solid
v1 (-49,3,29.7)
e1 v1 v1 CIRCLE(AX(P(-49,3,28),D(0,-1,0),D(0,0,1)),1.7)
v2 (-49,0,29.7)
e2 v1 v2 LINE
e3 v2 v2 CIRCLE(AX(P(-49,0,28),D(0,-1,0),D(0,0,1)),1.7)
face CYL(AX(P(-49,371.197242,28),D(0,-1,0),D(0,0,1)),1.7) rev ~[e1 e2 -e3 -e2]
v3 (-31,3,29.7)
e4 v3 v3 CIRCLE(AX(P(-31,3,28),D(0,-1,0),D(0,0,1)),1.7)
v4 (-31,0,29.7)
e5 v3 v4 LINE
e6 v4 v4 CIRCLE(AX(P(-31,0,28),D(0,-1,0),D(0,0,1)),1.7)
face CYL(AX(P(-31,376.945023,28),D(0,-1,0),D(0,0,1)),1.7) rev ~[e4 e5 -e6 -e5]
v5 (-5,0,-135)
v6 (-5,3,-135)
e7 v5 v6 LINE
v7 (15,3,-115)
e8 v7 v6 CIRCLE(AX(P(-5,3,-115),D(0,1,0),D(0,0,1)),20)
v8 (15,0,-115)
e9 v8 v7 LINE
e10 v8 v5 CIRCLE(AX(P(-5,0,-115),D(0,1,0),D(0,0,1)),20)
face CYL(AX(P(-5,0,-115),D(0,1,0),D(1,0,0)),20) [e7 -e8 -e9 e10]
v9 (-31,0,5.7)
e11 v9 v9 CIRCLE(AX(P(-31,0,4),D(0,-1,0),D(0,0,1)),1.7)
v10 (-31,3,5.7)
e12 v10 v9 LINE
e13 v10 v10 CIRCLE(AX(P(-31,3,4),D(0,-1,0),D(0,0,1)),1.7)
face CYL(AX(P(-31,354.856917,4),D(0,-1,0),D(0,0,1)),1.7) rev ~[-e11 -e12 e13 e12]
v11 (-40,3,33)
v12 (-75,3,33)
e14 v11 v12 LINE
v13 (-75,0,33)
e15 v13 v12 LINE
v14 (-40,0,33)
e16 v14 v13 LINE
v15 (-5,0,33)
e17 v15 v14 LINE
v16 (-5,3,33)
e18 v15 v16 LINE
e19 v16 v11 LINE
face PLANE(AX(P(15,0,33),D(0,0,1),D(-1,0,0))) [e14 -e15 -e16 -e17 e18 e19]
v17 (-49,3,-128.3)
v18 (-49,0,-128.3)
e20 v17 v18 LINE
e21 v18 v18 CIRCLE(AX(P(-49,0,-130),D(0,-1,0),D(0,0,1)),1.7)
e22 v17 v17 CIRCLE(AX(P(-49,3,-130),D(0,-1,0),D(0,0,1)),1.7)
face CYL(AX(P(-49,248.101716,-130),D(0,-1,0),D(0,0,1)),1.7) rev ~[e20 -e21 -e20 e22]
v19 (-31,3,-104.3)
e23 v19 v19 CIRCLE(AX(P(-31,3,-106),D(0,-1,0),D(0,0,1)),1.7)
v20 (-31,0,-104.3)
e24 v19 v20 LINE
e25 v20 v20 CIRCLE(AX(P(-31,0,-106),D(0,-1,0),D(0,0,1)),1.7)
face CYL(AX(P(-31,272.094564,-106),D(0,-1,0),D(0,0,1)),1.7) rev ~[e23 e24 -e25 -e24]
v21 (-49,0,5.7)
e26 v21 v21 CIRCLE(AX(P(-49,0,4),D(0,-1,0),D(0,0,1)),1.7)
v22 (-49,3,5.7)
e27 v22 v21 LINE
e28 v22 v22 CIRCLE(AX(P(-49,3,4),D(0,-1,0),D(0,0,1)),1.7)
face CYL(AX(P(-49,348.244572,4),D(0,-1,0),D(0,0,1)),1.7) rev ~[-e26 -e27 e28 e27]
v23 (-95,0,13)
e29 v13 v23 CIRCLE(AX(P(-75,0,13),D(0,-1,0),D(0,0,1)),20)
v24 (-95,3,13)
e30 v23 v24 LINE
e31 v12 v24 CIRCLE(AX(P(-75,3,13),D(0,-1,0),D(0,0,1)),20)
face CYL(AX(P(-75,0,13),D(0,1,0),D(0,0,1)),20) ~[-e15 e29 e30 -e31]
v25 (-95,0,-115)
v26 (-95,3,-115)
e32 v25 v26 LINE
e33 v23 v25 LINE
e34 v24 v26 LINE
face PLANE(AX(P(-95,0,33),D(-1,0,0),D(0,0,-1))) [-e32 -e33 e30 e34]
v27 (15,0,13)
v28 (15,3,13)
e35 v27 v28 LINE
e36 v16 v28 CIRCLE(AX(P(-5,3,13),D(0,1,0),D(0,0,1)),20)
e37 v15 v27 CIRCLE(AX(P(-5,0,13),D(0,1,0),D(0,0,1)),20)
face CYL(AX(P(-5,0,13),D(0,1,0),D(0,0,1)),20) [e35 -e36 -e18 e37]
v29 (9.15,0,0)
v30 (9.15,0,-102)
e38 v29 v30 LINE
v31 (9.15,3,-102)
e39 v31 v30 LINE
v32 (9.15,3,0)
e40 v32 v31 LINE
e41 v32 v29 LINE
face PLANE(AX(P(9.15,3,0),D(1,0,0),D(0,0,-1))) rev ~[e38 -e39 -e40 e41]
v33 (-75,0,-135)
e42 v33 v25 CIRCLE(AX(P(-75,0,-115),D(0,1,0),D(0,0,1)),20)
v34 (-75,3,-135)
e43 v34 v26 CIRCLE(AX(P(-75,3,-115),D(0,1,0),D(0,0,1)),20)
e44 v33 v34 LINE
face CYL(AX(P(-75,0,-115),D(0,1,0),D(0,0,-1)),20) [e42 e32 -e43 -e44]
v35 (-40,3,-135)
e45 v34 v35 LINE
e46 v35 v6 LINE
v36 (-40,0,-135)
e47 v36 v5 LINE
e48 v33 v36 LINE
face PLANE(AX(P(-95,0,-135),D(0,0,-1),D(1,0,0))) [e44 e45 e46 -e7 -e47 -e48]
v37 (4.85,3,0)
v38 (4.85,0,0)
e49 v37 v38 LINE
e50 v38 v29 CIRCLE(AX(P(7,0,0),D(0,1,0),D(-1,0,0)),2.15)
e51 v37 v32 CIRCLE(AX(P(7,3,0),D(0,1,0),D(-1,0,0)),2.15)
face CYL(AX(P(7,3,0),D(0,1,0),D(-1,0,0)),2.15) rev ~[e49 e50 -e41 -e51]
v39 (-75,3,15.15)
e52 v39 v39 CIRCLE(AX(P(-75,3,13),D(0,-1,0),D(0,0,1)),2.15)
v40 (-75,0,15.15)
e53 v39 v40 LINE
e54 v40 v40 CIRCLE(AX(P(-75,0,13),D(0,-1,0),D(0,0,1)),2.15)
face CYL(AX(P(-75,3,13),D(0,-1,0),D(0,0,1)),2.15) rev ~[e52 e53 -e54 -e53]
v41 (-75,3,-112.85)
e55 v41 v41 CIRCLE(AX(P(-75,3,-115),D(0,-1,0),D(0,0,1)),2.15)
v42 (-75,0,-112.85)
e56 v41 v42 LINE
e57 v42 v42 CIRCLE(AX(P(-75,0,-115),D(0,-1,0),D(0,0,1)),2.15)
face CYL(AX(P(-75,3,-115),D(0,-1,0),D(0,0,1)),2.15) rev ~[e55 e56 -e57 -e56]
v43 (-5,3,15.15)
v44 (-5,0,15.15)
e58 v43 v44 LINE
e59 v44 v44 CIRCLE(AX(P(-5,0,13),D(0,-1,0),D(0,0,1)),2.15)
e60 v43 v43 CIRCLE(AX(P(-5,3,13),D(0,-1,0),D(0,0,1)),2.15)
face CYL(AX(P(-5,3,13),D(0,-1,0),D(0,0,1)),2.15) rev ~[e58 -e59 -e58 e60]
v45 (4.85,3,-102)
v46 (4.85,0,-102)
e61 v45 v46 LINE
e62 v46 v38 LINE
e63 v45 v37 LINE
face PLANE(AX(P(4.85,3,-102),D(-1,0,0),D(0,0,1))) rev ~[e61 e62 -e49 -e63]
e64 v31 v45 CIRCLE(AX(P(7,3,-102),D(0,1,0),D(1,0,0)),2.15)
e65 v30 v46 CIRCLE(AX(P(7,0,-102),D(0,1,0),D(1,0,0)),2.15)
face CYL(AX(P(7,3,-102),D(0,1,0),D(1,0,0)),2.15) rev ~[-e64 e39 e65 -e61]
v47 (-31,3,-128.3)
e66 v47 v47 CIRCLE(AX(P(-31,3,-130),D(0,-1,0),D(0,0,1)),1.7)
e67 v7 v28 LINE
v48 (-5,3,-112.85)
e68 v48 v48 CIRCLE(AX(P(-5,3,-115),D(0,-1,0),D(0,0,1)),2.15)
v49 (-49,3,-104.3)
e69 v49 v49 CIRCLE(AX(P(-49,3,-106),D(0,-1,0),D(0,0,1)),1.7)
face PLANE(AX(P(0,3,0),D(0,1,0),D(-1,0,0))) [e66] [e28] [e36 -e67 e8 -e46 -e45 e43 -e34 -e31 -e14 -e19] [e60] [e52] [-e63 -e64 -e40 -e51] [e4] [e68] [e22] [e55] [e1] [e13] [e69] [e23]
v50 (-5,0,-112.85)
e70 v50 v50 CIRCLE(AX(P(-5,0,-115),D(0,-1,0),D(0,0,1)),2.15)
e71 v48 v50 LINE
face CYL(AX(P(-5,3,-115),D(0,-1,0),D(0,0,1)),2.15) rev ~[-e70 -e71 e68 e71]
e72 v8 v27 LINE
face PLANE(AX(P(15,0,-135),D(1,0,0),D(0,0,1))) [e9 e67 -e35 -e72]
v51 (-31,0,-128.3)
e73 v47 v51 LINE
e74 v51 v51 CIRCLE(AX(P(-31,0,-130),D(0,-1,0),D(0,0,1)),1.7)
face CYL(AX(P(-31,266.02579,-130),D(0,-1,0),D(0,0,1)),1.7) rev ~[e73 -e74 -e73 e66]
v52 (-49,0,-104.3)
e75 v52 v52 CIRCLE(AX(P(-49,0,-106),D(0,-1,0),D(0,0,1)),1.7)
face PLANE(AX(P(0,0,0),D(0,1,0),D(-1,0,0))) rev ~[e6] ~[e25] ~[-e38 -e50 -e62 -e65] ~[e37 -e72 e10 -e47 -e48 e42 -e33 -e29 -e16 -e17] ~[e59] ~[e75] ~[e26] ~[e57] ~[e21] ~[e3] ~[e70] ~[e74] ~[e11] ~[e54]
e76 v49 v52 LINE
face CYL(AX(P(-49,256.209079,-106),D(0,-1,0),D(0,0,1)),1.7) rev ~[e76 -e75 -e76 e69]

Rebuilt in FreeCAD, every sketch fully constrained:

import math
import FreeCAD as App
import Part
import Sketcher

V = App.Vector
Q = App.Units.Quantity


def edges_at(feature, points):
    """Names of the edges that pass closest to the given points."""
    edges = feature.Shape.Edges
    near = lambda p: min(range(len(edges)), key=lambda i: edges[i].distToShape(Part.Vertex(*p))[0])
    return sorted({f"Edge{near(p) + 1}" for p in points})

doc = App.newDocument("Part")
params = doc.addObject("Spreadsheet::Sheet", "Params")
for row, (alias, value) in enumerate([
    ("sketch1_height", "168 mm"),
    ("pad1_length", "3 mm"),
    ("sketch2_diameter", "3.4 mm"),
    ("hole_diameter", "3.4 mm"),
    ("fillet_radius", "20 mm"),
    ("sketch3_diameter", "4.3 mm"),
    ("hole2_diameter", "4.3 mm"),
    ("sketch4_height", "102 mm"),
    ("sketch4_radius", "2.15 mm"),
], start=1):
    params.set(f"A{row}", alias)
    params.set(f"B{row}", "=" + value)
    params.setAlias(f"B{row}", alias)

body = doc.addObject("PartDesign::Body", "Body")

# Sketch on XZ plane
sketch1 = body.newObject("Sketcher::SketchObject", "Sketch")
sketch1.AttachmentSupport = (doc.getObject("XZ_Plane"), [""])
sketch1.MapMode = "FlatFace"
sketch1.addGeometry(Part.LineSegment(V(-40, 33, 0), V(15, 33, 0)), False)
sketch1.addGeometry(Part.LineSegment(V(15, 33, 0), V(15, -135, 0)), False)
sketch1.addGeometry(Part.LineSegment(V(15, -135, 0), V(-40, -135, 0)), False)
sketch1.addGeometry(Part.LineSegment(V(-40, -135, 0), V(-95, -135, 0)), False)
sketch1.addGeometry(Part.LineSegment(V(-95, -135, 0), V(-95, 33, 0)), False)
sketch1.addGeometry(Part.LineSegment(V(-95, 33, 0), V(-40, 33, 0)), False)
sketch1.addConstraint(Sketcher.Constraint("Coincident", 0, 2, 1, 1))
sketch1.addConstraint(Sketcher.Constraint("Coincident", 1, 2, 2, 1))
sketch1.addConstraint(Sketcher.Constraint("Coincident", 2, 2, 3, 1))
sketch1.addConstraint(Sketcher.Constraint("Coincident", 3, 2, 4, 1))
sketch1.addConstraint(Sketcher.Constraint("Coincident", 4, 2, 5, 1))
sketch1.addConstraint(Sketcher.Constraint("Coincident", 5, 2, 0, 1))
sketch1.addConstraint(Sketcher.Constraint("Horizontal", 0))
sketch1.addConstraint(Sketcher.Constraint("Vertical", 1))
sketch1.addConstraint(Sketcher.Constraint("Horizontal", 2))
sketch1.addConstraint(Sketcher.Constraint("Horizontal", 3))
sketch1.addConstraint(Sketcher.Constraint("Vertical", 4))
sketch1.addConstraint(Sketcher.Constraint("Horizontal", 5))
sketch1.addConstraint(Sketcher.Constraint("Vertical", 2, 2, 5, 2))
sketch1.addConstraint(Sketcher.Constraint("Equal", 2, 3))
sketch1.addConstraint(Sketcher.Constraint("DistanceY", 1, 2, 1, 1, Q("168 mm")))
sketch1.addConstraint(Sketcher.Constraint("DistanceX", 3, 2, 1, 2, Q("110 mm")))
sketch1.addConstraint(Sketcher.Constraint("DistanceX", -1, 1, 0, 2, Q("15 mm")))
sketch1.addConstraint(Sketcher.Constraint("DistanceY", -1, 1, 0, 2, Q("33 mm")))
sketch1.setExpression("Constraints[14]", "Params.sketch1_height")
pad1 = body.newObject("PartDesign::Pad", "Pad")
pad1.Profile = sketch1
pad1.setExpression("Length", "Params.pad1_length")
pad1.Reversed = True

# Sketch on XZ plane
sketch2 = body.newObject("Sketcher::SketchObject", "Sketch001")
sketch2.AttachmentSupport = (doc.getObject("XZ_Plane"), [""])
sketch2.MapMode = "FlatFace"
sketch2.addGeometry(Part.Circle(V(-49, 28, 0), V(0, 0, 1), 1.7), False)
sketch2.addGeometry(Part.Circle(V(-49, 4, 0), V(0, 0, 1), 1.7), False)
sketch2.addGeometry(Part.Circle(V(-31, 28, 0), V(0, 0, 1), 1.7), False)
sketch2.addGeometry(Part.Circle(V(-31, 4, 0), V(0, 0, 1), 1.7), False)
sketch2.addGeometry(Part.Circle(V(-49, -130, 0), V(0, 0, 1), 1.7), False)
sketch2.addGeometry(Part.Circle(V(-31, -130, 0), V(0, 0, 1), 1.7), False)
sketch2.addGeometry(Part.Circle(V(-31, -106, 0), V(0, 0, 1), 1.7), False)
sketch2.addGeometry(Part.Circle(V(-49, -106, 0), V(0, 0, 1), 1.7), False)
sketch2.addConstraint(Sketcher.Constraint("Equal", 0, 1))
sketch2.addConstraint(Sketcher.Constraint("Equal", 1, 2))
sketch2.addConstraint(Sketcher.Constraint("Equal", 2, 3))
sketch2.addConstraint(Sketcher.Constraint("Equal", 3, 4))
sketch2.addConstraint(Sketcher.Constraint("Equal", 4, 5))
sketch2.addConstraint(Sketcher.Constraint("Equal", 5, 6))
sketch2.addConstraint(Sketcher.Constraint("Equal", 6, 7))
sketch2.addConstraint(Sketcher.Constraint("Horizontal", 0, 3, 2, 3))
sketch2.addConstraint(Sketcher.Constraint("Horizontal", 1, 3, 3, 3))
sketch2.addConstraint(Sketcher.Constraint("Horizontal", 4, 3, 5, 3))
sketch2.addConstraint(Sketcher.Constraint("Horizontal", 6, 3, 7, 3))
sketch2.addConstraint(Sketcher.Constraint("Vertical", 0, 3, 1, 3))
sketch2.addConstraint(Sketcher.Constraint("Vertical", 2, 3, 3, 3))
sketch2.addConstraint(Sketcher.Constraint("Vertical", 1, 3, 4, 3))
sketch2.addConstraint(Sketcher.Constraint("Vertical", 3, 3, 5, 3))
sketch2.addConstraint(Sketcher.Constraint("Vertical", 5, 3, 6, 3))
sketch2.addConstraint(Sketcher.Constraint("Vertical", 4, 3, 7, 3))
sketch2.addConstraint(Sketcher.Constraint("Diameter", 0, Q("3.4 mm")))
sketch2.addConstraint(Sketcher.Constraint("DistanceX", 0, 3, -1, 1, Q("49 mm")))
sketch2.addConstraint(Sketcher.Constraint("DistanceY", -1, 1, 0, 3, Q("28 mm")))
sketch2.addConstraint(Sketcher.Constraint("DistanceY", -1, 1, 1, 3, Q("4 mm")))
sketch2.addConstraint(Sketcher.Constraint("DistanceX", 2, 3, -1, 1, Q("31 mm")))
sketch2.addConstraint(Sketcher.Constraint("DistanceY", 4, 3, -1, 1, Q("130 mm")))
sketch2.addConstraint(Sketcher.Constraint("DistanceY", 6, 3, -1, 1, Q("106 mm")))
sketch2.setExpression("Constraints[17]", "Params.sketch2_diameter")
doc.recompute()
hole = body.newObject("PartDesign::Hole", "Hole")
hole.Profile = sketch2
hole.ThreadType = "None"
hole.setExpression("Diameter", "Params.hole_diameter")
hole.DepthType = "ThroughAll"
doc.recompute()

fillet = body.newObject("PartDesign::Fillet", "Fillet")
fillet.Base = (hole, edges_at(hole, [
    (15, 1.5, 33),
    (-95, 1.5, 33),
    (15, 1.5, -135),
    (-95, 1.5, -135),
]))
fillet.setExpression("Radius", "Params.fillet_radius")

# Sketch on XZ plane
sketch3 = body.newObject("Sketcher::SketchObject", "Sketch002")
sketch3.AttachmentSupport = (doc.getObject("XZ_Plane"), [""])
sketch3.MapMode = "FlatFace"
sketch3.AttachmentOffset = App.Placement(V(0, 0, -3), App.Rotation())
sketch3.addGeometry(Part.Circle(V(-75, 13, 0), V(0, 0, 1), 2.15), False)
sketch3.addGeometry(Part.Circle(V(-75, -115, 0), V(0, 0, 1), 2.15), False)
sketch3.addGeometry(Part.Circle(V(-5, -115, 0), V(0, 0, 1), 2.15), False)
sketch3.addGeometry(Part.Circle(V(-5, 13, 0), V(0, 0, 1), 2.15), False)
sketch3.addConstraint(Sketcher.Constraint("Equal", 0, 1))
sketch3.addConstraint(Sketcher.Constraint("Equal", 1, 2))
sketch3.addConstraint(Sketcher.Constraint("Equal", 2, 3))
sketch3.addConstraint(Sketcher.Constraint("Horizontal", 1, 3, 2, 3))
sketch3.addConstraint(Sketcher.Constraint("Horizontal", 0, 3, 3, 3))
sketch3.addConstraint(Sketcher.Constraint("Vertical", 0, 3, 1, 3))
sketch3.addConstraint(Sketcher.Constraint("Vertical", 2, 3, 3, 3))
sketch3.addConstraint(Sketcher.Constraint("Diameter", 0, Q("4.3 mm")))
sketch3.addConstraint(Sketcher.Constraint("DistanceX", 0, 3, -1, 1, Q("75 mm")))
sketch3.addConstraint(Sketcher.Constraint("DistanceY", -1, 1, 0, 3, Q("13 mm")))
sketch3.addConstraint(Sketcher.Constraint("DistanceY", 1, 3, -1, 1, Q("115 mm")))
sketch3.addConstraint(Sketcher.Constraint("DistanceX", 2, 3, -1, 1, Q("5 mm")))
sketch3.setExpression("Constraints[7]", "Params.sketch3_diameter")
doc.recompute()
hole2 = body.newObject("PartDesign::Hole", "Hole001")
hole2.Profile = sketch3
hole2.ThreadType = "None"
hole2.setExpression("Diameter", "Params.hole2_diameter")
hole2.DepthType = "ThroughAll"
hole2.Reversed = True

# Sketch on XZ plane
sketch4 = body.newObject("Sketcher::SketchObject", "Sketch003")
sketch4.AttachmentSupport = (doc.getObject("XZ_Plane"), [""])
sketch4.MapMode = "FlatFace"
sketch4.AttachmentOffset = App.Placement(V(0, 0, -3), App.Rotation())
sketch4.addGeometry(Part.ArcOfCircle(Part.Circle(V(7, 0, 0), V(0, 0, 1), 2.15), math.radians(0), math.radians(180)), False)
sketch4.addGeometry(Part.LineSegment(V(9.15, 0, 0), V(9.15, -102, 0)), False)
sketch4.addGeometry(Part.ArcOfCircle(Part.Circle(V(7, -102, 0), V(0, 0, 1), 2.15), math.radians(180), math.radians(360)), False)
sketch4.addGeometry(Part.LineSegment(V(4.85, -102, 0), V(4.85, 0, 0)), False)
sketch4.addConstraint(Sketcher.Constraint("Tangent", 0, 1, 1, 1))
sketch4.addConstraint(Sketcher.Constraint("Tangent", 1, 2, 2, 2))
sketch4.addConstraint(Sketcher.Constraint("Tangent", 2, 1, 3, 1))
sketch4.addConstraint(Sketcher.Constraint("Tangent", 3, 2, 0, 2))
sketch4.addConstraint(Sketcher.Constraint("Vertical", 1))
sketch4.addConstraint(Sketcher.Constraint("Vertical", 3))
sketch4.addConstraint(Sketcher.Constraint("PointOnObject", 0, 3, -1))
sketch4.addConstraint(Sketcher.Constraint("DistanceY", 1, 2, 1, 1, Q("102 mm")))
sketch4.addConstraint(Sketcher.Constraint("Radius", 0, Q("2.15 mm")))
sketch4.addConstraint(Sketcher.Constraint("DistanceX", -1, 1, 0, 3, Q("7 mm")))
sketch4.setExpression("Constraints[7]", "Params.sketch4_height")
sketch4.setExpression("Constraints[8]", "Params.sketch4_radius")
pocket1 = body.newObject("PartDesign::Pocket", "Pocket")
pocket1.Profile = sketch4
pocket1.Type = "ThroughAll"
pocket1.Reversed = True

doc.recompute()
